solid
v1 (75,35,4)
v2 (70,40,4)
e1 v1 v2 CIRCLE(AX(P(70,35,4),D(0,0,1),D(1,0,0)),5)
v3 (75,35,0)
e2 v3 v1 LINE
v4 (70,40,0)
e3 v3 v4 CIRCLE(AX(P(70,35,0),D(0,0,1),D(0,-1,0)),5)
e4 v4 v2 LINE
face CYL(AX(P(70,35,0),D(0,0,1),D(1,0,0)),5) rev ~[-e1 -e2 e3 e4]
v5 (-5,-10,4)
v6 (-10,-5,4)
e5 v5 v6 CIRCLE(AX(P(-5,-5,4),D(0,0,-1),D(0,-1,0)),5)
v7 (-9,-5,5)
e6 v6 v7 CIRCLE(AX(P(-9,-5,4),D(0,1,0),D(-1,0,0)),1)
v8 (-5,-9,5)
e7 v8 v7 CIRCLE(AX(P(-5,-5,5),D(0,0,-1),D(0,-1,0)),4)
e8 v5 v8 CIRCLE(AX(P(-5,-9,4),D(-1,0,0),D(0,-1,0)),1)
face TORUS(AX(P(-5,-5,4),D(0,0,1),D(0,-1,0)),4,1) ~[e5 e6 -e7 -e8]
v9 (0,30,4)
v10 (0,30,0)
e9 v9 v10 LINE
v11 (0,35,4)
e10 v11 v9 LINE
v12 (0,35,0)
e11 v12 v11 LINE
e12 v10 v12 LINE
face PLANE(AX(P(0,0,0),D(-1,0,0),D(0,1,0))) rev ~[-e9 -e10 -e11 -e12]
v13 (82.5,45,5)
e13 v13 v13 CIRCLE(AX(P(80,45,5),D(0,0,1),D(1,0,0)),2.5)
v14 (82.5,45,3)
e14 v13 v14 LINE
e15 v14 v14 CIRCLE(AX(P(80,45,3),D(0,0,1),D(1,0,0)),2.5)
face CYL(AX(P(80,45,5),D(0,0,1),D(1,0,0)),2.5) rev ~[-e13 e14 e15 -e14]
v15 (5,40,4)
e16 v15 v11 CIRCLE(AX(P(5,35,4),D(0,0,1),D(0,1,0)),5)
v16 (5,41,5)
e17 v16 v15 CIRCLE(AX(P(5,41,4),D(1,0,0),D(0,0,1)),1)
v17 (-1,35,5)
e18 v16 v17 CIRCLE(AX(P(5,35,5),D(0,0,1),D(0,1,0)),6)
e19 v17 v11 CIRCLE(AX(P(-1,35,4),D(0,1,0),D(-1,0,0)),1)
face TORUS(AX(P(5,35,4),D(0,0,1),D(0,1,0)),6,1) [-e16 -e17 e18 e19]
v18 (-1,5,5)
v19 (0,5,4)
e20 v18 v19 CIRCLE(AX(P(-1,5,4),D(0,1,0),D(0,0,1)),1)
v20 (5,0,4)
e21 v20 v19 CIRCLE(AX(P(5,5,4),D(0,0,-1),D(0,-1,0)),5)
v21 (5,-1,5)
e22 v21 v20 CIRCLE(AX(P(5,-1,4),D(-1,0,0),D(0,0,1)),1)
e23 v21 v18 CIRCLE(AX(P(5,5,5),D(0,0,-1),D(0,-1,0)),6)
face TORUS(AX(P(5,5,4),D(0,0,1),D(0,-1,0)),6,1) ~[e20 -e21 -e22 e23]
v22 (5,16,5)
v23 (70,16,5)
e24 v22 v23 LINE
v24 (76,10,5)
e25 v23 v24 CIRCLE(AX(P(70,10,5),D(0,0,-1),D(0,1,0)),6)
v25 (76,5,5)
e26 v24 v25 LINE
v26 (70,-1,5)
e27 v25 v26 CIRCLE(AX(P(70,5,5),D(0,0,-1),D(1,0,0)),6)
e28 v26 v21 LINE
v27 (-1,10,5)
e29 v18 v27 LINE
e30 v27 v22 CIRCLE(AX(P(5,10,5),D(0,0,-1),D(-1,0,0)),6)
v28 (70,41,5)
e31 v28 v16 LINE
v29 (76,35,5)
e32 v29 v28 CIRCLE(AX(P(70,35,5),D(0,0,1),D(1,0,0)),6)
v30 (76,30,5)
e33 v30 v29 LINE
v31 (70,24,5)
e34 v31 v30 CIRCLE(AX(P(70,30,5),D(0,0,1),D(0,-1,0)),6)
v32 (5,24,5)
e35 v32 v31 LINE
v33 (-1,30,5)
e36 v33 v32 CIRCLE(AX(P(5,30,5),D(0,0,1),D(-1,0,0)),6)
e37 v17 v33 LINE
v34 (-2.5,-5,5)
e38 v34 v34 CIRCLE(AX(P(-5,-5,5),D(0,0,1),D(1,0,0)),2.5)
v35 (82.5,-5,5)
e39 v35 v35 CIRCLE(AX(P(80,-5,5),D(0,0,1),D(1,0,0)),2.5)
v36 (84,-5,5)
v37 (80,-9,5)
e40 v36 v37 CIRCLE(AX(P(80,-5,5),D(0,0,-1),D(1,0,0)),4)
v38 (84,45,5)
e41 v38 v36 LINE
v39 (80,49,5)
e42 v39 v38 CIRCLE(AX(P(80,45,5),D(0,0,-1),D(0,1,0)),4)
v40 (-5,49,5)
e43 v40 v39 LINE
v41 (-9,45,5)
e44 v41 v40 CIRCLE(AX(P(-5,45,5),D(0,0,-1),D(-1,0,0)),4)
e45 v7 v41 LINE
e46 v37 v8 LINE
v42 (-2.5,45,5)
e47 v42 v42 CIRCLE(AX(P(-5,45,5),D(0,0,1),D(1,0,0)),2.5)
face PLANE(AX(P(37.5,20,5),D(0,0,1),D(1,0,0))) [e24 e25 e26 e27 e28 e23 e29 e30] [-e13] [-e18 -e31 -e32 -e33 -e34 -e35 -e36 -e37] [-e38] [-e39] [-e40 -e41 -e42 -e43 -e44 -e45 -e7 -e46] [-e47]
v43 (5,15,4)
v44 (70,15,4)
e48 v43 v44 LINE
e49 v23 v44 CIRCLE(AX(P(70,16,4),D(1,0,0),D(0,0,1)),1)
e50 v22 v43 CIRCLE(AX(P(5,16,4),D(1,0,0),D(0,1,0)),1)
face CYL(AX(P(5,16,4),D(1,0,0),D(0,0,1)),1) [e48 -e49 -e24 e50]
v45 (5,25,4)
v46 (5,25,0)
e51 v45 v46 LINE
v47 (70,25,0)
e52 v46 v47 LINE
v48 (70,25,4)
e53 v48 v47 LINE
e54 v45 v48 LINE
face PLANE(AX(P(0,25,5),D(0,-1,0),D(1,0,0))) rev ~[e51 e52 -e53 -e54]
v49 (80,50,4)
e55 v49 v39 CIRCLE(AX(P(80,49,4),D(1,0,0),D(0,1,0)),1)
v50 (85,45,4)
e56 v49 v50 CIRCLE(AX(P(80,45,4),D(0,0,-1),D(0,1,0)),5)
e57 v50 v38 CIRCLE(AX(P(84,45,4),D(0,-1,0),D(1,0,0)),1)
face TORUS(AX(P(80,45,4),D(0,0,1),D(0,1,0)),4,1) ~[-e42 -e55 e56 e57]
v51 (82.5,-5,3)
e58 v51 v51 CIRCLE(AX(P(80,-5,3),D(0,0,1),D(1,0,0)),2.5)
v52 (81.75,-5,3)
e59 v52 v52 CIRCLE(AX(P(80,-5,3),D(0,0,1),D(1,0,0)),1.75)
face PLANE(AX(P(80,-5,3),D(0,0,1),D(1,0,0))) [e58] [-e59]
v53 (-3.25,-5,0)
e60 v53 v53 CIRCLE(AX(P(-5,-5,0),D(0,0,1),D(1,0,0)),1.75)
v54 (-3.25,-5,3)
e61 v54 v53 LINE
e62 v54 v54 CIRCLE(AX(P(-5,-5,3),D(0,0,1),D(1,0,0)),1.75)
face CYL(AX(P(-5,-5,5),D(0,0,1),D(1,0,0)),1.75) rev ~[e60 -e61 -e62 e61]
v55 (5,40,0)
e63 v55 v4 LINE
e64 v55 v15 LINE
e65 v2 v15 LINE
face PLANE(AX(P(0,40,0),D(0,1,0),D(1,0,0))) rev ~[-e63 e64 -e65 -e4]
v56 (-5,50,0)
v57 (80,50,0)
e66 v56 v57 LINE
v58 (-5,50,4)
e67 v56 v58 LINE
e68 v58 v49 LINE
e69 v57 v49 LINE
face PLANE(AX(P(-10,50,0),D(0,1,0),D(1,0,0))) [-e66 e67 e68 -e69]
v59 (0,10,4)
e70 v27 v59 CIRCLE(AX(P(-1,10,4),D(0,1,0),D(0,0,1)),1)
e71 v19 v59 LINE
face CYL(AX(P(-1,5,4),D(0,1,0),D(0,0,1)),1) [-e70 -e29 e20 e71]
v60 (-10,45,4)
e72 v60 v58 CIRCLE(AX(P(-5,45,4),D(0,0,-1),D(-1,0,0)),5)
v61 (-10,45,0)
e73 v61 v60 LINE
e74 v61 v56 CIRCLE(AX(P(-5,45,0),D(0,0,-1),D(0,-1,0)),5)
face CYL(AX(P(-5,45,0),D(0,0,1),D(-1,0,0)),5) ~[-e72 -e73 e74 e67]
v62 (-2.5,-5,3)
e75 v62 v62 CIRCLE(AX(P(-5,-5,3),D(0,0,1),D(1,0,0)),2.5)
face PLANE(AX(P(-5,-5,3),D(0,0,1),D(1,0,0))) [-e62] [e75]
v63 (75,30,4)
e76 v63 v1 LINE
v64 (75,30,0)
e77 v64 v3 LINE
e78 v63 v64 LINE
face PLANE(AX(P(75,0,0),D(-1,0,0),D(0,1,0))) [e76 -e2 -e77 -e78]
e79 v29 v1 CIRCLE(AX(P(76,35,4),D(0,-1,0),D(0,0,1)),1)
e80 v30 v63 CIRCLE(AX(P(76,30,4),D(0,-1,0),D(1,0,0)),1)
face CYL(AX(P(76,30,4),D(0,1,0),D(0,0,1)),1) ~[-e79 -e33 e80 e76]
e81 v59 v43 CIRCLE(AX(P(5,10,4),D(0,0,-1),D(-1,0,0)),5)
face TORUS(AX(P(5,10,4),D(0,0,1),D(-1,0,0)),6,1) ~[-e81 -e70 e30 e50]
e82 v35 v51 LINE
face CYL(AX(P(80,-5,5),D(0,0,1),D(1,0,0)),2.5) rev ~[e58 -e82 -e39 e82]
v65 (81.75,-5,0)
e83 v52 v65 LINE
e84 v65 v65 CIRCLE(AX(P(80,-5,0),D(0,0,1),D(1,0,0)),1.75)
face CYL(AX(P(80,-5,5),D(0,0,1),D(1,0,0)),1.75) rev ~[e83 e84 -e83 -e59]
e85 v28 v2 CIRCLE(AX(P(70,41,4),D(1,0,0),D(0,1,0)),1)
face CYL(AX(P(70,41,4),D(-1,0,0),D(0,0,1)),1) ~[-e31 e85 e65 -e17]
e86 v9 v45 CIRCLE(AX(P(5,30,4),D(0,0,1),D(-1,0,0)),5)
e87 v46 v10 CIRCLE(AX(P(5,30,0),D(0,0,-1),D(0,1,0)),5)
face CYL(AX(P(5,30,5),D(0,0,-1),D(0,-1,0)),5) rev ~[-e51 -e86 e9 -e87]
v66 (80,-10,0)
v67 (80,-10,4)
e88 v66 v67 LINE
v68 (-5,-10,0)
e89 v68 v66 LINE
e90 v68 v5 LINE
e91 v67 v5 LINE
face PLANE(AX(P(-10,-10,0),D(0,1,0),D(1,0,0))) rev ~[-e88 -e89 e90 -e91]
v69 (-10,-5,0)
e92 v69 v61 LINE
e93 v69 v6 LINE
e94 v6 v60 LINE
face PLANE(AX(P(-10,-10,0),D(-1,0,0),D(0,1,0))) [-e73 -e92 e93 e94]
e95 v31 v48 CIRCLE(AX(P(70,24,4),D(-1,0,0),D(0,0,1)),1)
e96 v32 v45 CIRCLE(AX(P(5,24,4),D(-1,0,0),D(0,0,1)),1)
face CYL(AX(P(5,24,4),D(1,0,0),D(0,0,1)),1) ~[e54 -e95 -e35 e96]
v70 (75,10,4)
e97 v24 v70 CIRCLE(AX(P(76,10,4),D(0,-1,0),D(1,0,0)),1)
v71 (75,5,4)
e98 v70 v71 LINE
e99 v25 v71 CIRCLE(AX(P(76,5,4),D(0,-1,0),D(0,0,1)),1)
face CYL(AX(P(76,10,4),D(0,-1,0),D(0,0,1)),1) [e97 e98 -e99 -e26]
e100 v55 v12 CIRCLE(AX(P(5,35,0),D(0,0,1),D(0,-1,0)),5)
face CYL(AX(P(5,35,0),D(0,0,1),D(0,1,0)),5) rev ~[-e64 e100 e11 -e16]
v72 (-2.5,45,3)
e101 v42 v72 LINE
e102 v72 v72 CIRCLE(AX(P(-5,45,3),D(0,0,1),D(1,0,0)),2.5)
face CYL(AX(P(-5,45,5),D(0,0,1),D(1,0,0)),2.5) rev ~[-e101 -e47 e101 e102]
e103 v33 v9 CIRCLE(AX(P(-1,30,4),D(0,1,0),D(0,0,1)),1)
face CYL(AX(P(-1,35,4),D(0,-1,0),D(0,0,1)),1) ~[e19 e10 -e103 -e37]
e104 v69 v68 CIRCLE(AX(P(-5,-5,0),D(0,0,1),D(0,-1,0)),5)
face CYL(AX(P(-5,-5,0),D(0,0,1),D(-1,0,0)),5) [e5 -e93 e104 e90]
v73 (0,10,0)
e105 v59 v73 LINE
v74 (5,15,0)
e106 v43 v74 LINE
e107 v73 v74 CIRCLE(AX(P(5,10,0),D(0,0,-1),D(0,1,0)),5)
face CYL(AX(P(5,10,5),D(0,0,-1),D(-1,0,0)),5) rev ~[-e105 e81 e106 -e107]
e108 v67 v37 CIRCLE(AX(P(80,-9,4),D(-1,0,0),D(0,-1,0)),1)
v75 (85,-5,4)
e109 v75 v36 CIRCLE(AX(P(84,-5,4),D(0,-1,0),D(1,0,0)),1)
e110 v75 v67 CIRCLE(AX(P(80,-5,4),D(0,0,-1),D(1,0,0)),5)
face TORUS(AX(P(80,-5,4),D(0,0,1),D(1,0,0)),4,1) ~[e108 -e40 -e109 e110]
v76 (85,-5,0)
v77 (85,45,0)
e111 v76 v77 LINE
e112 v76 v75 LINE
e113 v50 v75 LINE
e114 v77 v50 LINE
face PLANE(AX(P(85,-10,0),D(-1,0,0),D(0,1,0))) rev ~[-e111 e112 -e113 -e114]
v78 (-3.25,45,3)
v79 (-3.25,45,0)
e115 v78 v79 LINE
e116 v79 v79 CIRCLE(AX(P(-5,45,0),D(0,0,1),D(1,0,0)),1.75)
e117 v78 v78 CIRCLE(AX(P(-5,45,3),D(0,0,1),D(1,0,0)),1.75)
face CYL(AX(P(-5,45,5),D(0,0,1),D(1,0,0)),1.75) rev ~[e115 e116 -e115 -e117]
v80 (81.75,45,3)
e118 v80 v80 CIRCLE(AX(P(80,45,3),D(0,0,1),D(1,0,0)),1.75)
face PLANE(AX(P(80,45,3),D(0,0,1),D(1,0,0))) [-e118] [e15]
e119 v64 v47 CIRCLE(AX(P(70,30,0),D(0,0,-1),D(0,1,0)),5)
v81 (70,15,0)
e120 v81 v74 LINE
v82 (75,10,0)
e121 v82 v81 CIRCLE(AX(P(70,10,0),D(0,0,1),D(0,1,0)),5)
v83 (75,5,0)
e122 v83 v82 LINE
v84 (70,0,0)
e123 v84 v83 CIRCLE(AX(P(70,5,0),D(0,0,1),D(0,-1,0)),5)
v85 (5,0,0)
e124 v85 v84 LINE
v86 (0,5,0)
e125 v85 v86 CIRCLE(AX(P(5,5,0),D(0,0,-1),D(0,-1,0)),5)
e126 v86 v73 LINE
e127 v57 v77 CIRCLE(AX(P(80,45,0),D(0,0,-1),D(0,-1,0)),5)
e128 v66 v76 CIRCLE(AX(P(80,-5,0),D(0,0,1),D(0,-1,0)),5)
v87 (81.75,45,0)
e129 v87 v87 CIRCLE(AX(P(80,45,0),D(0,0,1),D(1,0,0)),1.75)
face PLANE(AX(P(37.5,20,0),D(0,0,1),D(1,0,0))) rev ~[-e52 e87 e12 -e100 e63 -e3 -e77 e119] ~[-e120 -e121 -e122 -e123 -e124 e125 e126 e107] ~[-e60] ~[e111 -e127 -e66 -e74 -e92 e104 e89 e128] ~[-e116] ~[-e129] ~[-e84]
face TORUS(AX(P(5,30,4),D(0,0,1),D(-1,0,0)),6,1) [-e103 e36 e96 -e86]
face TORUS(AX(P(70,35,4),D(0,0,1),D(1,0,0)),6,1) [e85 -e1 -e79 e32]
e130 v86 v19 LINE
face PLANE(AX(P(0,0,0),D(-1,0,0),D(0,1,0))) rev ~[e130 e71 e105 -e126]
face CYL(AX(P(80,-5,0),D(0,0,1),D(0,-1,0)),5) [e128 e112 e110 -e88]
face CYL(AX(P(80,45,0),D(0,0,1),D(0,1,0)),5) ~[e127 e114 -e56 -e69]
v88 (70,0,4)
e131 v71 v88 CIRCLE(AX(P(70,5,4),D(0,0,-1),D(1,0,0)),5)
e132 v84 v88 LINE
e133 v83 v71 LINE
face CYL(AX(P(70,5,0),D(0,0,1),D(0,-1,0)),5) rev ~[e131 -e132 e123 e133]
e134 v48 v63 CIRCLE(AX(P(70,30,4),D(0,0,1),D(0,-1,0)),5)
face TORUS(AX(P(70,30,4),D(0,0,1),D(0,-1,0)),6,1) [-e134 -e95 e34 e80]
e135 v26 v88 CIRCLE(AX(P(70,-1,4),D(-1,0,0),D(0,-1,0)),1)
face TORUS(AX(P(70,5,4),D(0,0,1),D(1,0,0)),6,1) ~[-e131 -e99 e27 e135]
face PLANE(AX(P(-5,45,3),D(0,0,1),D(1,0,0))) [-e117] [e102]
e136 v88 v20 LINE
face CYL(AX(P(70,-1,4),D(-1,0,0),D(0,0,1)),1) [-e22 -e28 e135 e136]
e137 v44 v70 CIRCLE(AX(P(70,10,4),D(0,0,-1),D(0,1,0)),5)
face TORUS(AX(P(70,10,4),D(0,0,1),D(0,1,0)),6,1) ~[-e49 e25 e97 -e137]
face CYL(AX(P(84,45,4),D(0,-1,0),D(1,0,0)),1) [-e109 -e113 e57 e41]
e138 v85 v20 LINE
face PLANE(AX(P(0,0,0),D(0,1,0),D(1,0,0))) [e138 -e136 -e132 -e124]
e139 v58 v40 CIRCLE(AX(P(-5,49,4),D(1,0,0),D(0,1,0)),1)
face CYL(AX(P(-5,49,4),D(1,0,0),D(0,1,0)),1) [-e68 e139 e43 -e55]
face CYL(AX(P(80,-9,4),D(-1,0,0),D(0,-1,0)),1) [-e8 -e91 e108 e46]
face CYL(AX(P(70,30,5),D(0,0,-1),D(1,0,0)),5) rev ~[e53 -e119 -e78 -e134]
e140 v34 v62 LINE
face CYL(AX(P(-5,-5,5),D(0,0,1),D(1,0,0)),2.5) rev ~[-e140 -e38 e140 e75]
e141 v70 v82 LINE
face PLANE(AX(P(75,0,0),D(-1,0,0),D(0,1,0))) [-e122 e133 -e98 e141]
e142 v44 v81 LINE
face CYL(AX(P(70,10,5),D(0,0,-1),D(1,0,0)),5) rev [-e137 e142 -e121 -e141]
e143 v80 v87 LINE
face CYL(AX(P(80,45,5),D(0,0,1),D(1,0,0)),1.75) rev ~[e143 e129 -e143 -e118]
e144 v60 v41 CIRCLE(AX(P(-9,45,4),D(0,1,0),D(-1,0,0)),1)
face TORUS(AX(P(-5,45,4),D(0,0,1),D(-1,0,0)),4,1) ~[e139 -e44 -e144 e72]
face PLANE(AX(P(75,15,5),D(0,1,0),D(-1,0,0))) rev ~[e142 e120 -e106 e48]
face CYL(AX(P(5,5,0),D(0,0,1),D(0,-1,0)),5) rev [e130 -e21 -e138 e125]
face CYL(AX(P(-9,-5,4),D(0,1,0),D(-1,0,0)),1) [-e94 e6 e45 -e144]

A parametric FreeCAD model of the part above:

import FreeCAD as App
import Part
import Sketcher
Q = App.Units.Quantity


def edges_at(feature, points):
    """Names of the edges that pass closest to the given points."""
    edges = feature.Shape.Edges
    near = lambda p: min(range(len(edges)), key=lambda i: edges[i].distToShape(Part.Vertex(*p))[0])
    return sorted({f"Edge{near(p) + 1}" for p in points})

doc = App.newDocument("Part")
body = doc.addObject("PartDesign::Body", "Body")

sketch1 = body.newObject("Sketcher::SketchObject", "Sketch")
sketch1.AttachmentSupport = (doc.getObject("XY_Plane"), [""])
sketch1.MapMode = "FlatFace"
sketch1.addGeometry(Part.LineSegment(App.Vector(-10, 50, 0), App.Vector(-10, -10, 0)), False)
sketch1.addGeometry(Part.LineSegment(App.Vector(-10, -10, 0), App.Vector(85, -10, 0)), False)
sketch1.addGeometry(Part.LineSegment(App.Vector(85, -10, 0), App.Vector(85, 50, 0)), False)
sketch1.addGeometry(Part.LineSegment(App.Vector(85, 50, 0), App.Vector(-10, 50, 0)), False)
sketch1.addGeometry(Part.LineSegment(App.Vector(75, 0, 0), App.Vector(0, 0, 0)), False)
sketch1.addGeometry(Part.LineSegment(App.Vector(0, 0, 0), App.Vector(0, 40, 0)), False)
sketch1.addGeometry(Part.LineSegment(App.Vector(0, 40, 0), App.Vector(75, 40, 0)), False)
sketch1.addGeometry(Part.LineSegment(App.Vector(75, 40, 0), App.Vector(75, 0, 0)), False)
sketch1.addConstraint(Sketcher.Constraint("Coincident", 0, 2, 1, 1))
sketch1.addConstraint(Sketcher.Constraint("Coincident", 1, 2, 2, 1))
sketch1.addConstraint(Sketcher.Constraint("Coincident", 2, 2, 3, 1))
sketch1.addConstraint(Sketcher.Constraint("Coincident", 3, 2, 0, 1))
sketch1.addConstraint(Sketcher.Constraint("Coincident", 4, 2, 5, 1))
sketch1.addConstraint(Sketcher.Constraint("Coincident", 5, 2, 6, 1))
sketch1.addConstraint(Sketcher.Constraint("Coincident", 6, 2, 7, 1))
sketch1.addConstraint(Sketcher.Constraint("Coincident", 7, 2, 4, 1))
sketch1.addConstraint(Sketcher.Constraint("Vertical", 0))
sketch1.addConstraint(Sketcher.Constraint("Horizontal", 1))
sketch1.addConstraint(Sketcher.Constraint("Vertical", 2))
sketch1.addConstraint(Sketcher.Constraint("Horizontal", 3))
sketch1.addConstraint(Sketcher.Constraint("Horizontal", 4))
sketch1.addConstraint(Sketcher.Constraint("Vertical", 5))
sketch1.addConstraint(Sketcher.Constraint("Horizontal", 6))
sketch1.addConstraint(Sketcher.Constraint("Vertical", 7))
sketch1.addConstraint(Sketcher.Constraint("Coincident", 4, 2, -1, 1))
sketch1.addConstraint(Sketcher.Constraint("DistanceX", 1, 1, 1, 2, Q("95 mm")))
sketch1.addConstraint(Sketcher.Constraint("DistanceX", 4, 2, 4, 1, Q("75 mm")))
sketch1.addConstraint(Sketcher.Constraint("DistanceY", 0, 2, 0, 1, Q("60 mm")))
sketch1.addConstraint(Sketcher.Constraint("DistanceY", 5, 1, 5, 2, Q("40 mm")))
sketch1.addConstraint(Sketcher.Constraint("DistanceX", 0, 2, -1, 1, Q("10 mm")))
sketch1.addConstraint(Sketcher.Constraint("DistanceY", 0, 2, -1, 1, Q("10 mm")))
pad1 = body.newObject("PartDesign::Pad", "Pad")
pad1.Profile = sketch1
pad1.Length = 5

sketch2 = body.newObject("Sketcher::SketchObject", "Sketch001")
sketch2.AttachmentSupport = (doc.getObject("XY_Plane"), [""])
sketch2.MapMode = "FlatFace"
sketch2.AttachmentOffset = App.Placement(App.Vector(0, 0, 5), App.Rotation())
sketch2.addGeometry(Part.LineSegment(App.Vector(75, 25, 0), App.Vector(0, 25, 0)), False)
sketch2.addGeometry(Part.LineSegment(App.Vector(0, 25, 0), App.Vector(0, 15, 0)), False)
sketch2.addGeometry(Part.LineSegment(App.Vector(0, 15, 0), App.Vector(75, 15, 0)), False)
sketch2.addGeometry(Part.LineSegment(App.Vector(75, 15, 0), App.Vector(75, 25, 0)), False)
sketch2.addConstraint(Sketcher.Constraint("Coincident", 0, 2, 1, 1))
sketch2.addConstraint(Sketcher.Constraint("Coincident", 1, 2, 2, 1))
sketch2.addConstraint(Sketcher.Constraint("Coincident", 2, 2, 3, 1))
sketch2.addConstraint(Sketcher.Constraint("Coincident", 3, 2, 0, 1))
sketch2.addConstraint(Sketcher.Constraint("Horizontal", 0))
sketch2.addConstraint(Sketcher.Constraint("Vertical", 1))
sketch2.addConstraint(Sketcher.Constraint("Horizontal", 2))
sketch2.addConstraint(Sketcher.Constraint("Vertical", 3))
sketch2.addConstraint(Sketcher.Constraint("PointOnObject", 0, 2, -2))
sketch2.addConstraint(Sketcher.Constraint("DistanceX", 0, 2, 0, 1, Q("75 mm")))
sketch2.addConstraint(Sketcher.Constraint("DistanceY", 1, 2, 1, 1, Q("10 mm")))
sketch2.addConstraint(Sketcher.Constraint("DistanceY", -1, 1, 0, 2, Q("25 mm")))
pad2 = body.newObject("PartDesign::Pad", "Pad001")
pad2.Profile = sketch2
pad2.Length = 5
pad2.Reversed = True

sketch3 = body.newObject("Sketcher::SketchObject", "Sketch002")
sketch3.AttachmentSupport = (doc.getObject("XY_Plane"), [""])
sketch3.MapMode = "FlatFace"
sketch3.AttachmentOffset = App.Placement(App.Vector(0, 0, 5), App.Rotation())
sketch3.addGeometry(Part.Circle(App.Vector(-5, 45, 0), App.Vector(0, 0, 1), 1.75), False)
sketch3.addGeometry(Part.Circle(App.Vector(80, 45, 0), App.Vector(0, 0, 1), 1.75), False)
sketch3.addGeometry(Part.Circle(App.Vector(80, -5, 0), App.Vector(0, 0, 1), 1.75), False)
sketch3.addGeometry(Part.Circle(App.Vector(-5, -5, 0), App.Vector(0, 0, 1), 1.75), False)
sketch3.addConstraint(Sketcher.Constraint("Equal", 0, 1))
sketch3.addConstraint(Sketcher.Constraint("Equal", 1, 2))
sketch3.addConstraint(Sketcher.Constraint("Equal", 2, 3))
sketch3.addConstraint(Sketcher.Constraint("Horizontal", 0, 3, 1, 3))
sketch3.addConstraint(Sketcher.Constraint("Horizontal", 2, 3, 3, 3))
sketch3.addConstraint(Sketcher.Constraint("Vertical", 1, 3, 2, 3))
sketch3.addConstraint(Sketcher.Constraint("Vertical", 0, 3, 3, 3))
sketch3.addConstraint(Sketcher.Constraint("Diameter", 0, Q("3.5 mm")))
sketch3.addConstraint(Sketcher.Constraint("DistanceX", 0, 3, -1, 1, Q("5 mm")))
sketch3.addConstraint(Sketcher.Constraint("DistanceY", -1, 1, 0, 3, Q("45 mm")))
sketch3.addConstraint(Sketcher.Constraint("DistanceX", -1, 1, 1, 3, Q("80 mm")))
sketch3.addConstraint(Sketcher.Constraint("DistanceY", 2, 3, -1, 1, Q("5 mm")))
pocket1 = body.newObject("PartDesign::Pocket", "Pocket")
pocket1.Profile = sketch3
pocket1.Type = "ThroughAll"

sketch4 = body.newObject("Sketcher::SketchObject", "Sketch003")
sketch4.AttachmentSupport = (doc.getObject("XY_Plane"), [""])
sketch4.MapMode = "FlatFace"
sketch4.AttachmentOffset = App.Placement(App.Vector(0, 0, 5), App.Rotation())
sketch4.addGeometry(Part.Circle(App.Vector(-5, 45, 0), App.Vector(0, 0, 1), 2.5), False)
sketch4.addGeometry(Part.Circle(App.Vector(80, 45, 0), App.Vector(0, 0, 1), 2.5), False)
sketch4.addGeometry(Part.Circle(App.Vector(80, -5, 0), App.Vector(0, 0, 1), 2.5), False)
sketch4.addGeometry(Part.Circle(App.Vector(-5, -5, 0), App.Vector(0, 0, 1), 2.5), False)
sketch4.addConstraint(Sketcher.Constraint("Equal", 0, 1))
sketch4.addConstraint(Sketcher.Constraint("Equal", 1, 2))
sketch4.addConstraint(Sketcher.Constraint("Equal", 2, 3))
sketch4.addConstraint(Sketcher.Constraint("Horizontal", 0, 3, 1, 3))
sketch4.addConstraint(Sketcher.Constraint("Horizontal", 2, 3, 3, 3))
sketch4.addConstraint(Sketcher.Constraint("Vertical", 1, 3, 2, 3))
sketch4.addConstraint(Sketcher.Constraint("Vertical", 0, 3, 3, 3))
sketch4.addConstraint(Sketcher.Constraint("Diameter", 0, Q("5 mm")))
sketch4.addConstraint(Sketcher.Constraint("DistanceX", 0, 3, -1, 1, Q("5 mm")))
sketch4.addConstraint(Sketcher.Constraint("DistanceY", -1, 1, 0, 3, Q("45 mm")))
sketch4.addConstraint(Sketcher.Constraint("DistanceX", -1, 1, 1, 3, Q("80 mm")))
sketch4.addConstraint(Sketcher.Constraint("DistanceY", 2, 3, -1, 1, Q("5 mm")))
pocket2 = body.newObject("PartDesign::Pocket", "Pocket001")
pocket2.Profile = sketch4
pocket2.Length = 2
doc.recompute()

fillet = body.newObject("PartDesign::Fillet", "Fillet")
fillet.Base = (pocket2, edges_at(pocket2, [
    (0, 40, 2.5),
    (0, 0, 2.5),
    (75, 0, 2.5),
    (75, 40, 2.5),
    (0, 15, 2.5),
    (0, 25, 2.5),
    (75, 25, 2.5),
    (75, 15, 2.5),
    (-10, 50, 2.5),
    (85, 50, 2.5),
    (85, -10, 2.5),
    (-10, -10, 2.5),
]))
fillet.Radius = 5
doc.recompute()

fillet2 = body.newObject("PartDesign::Fillet", "Fillet001")
fillet2.Base = (fillet, edges_at(fillet, [
    (0, 7.5, 5),
    (37.5, 15, 5),
    (37.5, 0, 5),
    (75, 7.5, 5),
    (37.5, 25, 5),
    (0, 32.5, 5),
    (75, 32.5, 5),
    (37.5, 40, 5),
    (-10, 20, 5),
    (37.5, 50, 5),
    (37.5, -10, 5),
    (85, 20, 5),
    (-8.536, -8.536, 5),
    (83.536, -8.536, 5),
    (83.536, 48.536, 5),
    (-8.536, 48.536, 5),
    (1.464, 13.536, 5),
    (73.536, 1.464, 5),
    (73.536, 13.536, 5),
    (1.464, 1.464, 5),
    (1.464, 26.464, 5),
    (73.536, 26.464, 5),
    (73.536, 38.536, 5),
    (1.464, 38.536, 5),
]))
fillet2.Radius = 1

doc.recompute()
